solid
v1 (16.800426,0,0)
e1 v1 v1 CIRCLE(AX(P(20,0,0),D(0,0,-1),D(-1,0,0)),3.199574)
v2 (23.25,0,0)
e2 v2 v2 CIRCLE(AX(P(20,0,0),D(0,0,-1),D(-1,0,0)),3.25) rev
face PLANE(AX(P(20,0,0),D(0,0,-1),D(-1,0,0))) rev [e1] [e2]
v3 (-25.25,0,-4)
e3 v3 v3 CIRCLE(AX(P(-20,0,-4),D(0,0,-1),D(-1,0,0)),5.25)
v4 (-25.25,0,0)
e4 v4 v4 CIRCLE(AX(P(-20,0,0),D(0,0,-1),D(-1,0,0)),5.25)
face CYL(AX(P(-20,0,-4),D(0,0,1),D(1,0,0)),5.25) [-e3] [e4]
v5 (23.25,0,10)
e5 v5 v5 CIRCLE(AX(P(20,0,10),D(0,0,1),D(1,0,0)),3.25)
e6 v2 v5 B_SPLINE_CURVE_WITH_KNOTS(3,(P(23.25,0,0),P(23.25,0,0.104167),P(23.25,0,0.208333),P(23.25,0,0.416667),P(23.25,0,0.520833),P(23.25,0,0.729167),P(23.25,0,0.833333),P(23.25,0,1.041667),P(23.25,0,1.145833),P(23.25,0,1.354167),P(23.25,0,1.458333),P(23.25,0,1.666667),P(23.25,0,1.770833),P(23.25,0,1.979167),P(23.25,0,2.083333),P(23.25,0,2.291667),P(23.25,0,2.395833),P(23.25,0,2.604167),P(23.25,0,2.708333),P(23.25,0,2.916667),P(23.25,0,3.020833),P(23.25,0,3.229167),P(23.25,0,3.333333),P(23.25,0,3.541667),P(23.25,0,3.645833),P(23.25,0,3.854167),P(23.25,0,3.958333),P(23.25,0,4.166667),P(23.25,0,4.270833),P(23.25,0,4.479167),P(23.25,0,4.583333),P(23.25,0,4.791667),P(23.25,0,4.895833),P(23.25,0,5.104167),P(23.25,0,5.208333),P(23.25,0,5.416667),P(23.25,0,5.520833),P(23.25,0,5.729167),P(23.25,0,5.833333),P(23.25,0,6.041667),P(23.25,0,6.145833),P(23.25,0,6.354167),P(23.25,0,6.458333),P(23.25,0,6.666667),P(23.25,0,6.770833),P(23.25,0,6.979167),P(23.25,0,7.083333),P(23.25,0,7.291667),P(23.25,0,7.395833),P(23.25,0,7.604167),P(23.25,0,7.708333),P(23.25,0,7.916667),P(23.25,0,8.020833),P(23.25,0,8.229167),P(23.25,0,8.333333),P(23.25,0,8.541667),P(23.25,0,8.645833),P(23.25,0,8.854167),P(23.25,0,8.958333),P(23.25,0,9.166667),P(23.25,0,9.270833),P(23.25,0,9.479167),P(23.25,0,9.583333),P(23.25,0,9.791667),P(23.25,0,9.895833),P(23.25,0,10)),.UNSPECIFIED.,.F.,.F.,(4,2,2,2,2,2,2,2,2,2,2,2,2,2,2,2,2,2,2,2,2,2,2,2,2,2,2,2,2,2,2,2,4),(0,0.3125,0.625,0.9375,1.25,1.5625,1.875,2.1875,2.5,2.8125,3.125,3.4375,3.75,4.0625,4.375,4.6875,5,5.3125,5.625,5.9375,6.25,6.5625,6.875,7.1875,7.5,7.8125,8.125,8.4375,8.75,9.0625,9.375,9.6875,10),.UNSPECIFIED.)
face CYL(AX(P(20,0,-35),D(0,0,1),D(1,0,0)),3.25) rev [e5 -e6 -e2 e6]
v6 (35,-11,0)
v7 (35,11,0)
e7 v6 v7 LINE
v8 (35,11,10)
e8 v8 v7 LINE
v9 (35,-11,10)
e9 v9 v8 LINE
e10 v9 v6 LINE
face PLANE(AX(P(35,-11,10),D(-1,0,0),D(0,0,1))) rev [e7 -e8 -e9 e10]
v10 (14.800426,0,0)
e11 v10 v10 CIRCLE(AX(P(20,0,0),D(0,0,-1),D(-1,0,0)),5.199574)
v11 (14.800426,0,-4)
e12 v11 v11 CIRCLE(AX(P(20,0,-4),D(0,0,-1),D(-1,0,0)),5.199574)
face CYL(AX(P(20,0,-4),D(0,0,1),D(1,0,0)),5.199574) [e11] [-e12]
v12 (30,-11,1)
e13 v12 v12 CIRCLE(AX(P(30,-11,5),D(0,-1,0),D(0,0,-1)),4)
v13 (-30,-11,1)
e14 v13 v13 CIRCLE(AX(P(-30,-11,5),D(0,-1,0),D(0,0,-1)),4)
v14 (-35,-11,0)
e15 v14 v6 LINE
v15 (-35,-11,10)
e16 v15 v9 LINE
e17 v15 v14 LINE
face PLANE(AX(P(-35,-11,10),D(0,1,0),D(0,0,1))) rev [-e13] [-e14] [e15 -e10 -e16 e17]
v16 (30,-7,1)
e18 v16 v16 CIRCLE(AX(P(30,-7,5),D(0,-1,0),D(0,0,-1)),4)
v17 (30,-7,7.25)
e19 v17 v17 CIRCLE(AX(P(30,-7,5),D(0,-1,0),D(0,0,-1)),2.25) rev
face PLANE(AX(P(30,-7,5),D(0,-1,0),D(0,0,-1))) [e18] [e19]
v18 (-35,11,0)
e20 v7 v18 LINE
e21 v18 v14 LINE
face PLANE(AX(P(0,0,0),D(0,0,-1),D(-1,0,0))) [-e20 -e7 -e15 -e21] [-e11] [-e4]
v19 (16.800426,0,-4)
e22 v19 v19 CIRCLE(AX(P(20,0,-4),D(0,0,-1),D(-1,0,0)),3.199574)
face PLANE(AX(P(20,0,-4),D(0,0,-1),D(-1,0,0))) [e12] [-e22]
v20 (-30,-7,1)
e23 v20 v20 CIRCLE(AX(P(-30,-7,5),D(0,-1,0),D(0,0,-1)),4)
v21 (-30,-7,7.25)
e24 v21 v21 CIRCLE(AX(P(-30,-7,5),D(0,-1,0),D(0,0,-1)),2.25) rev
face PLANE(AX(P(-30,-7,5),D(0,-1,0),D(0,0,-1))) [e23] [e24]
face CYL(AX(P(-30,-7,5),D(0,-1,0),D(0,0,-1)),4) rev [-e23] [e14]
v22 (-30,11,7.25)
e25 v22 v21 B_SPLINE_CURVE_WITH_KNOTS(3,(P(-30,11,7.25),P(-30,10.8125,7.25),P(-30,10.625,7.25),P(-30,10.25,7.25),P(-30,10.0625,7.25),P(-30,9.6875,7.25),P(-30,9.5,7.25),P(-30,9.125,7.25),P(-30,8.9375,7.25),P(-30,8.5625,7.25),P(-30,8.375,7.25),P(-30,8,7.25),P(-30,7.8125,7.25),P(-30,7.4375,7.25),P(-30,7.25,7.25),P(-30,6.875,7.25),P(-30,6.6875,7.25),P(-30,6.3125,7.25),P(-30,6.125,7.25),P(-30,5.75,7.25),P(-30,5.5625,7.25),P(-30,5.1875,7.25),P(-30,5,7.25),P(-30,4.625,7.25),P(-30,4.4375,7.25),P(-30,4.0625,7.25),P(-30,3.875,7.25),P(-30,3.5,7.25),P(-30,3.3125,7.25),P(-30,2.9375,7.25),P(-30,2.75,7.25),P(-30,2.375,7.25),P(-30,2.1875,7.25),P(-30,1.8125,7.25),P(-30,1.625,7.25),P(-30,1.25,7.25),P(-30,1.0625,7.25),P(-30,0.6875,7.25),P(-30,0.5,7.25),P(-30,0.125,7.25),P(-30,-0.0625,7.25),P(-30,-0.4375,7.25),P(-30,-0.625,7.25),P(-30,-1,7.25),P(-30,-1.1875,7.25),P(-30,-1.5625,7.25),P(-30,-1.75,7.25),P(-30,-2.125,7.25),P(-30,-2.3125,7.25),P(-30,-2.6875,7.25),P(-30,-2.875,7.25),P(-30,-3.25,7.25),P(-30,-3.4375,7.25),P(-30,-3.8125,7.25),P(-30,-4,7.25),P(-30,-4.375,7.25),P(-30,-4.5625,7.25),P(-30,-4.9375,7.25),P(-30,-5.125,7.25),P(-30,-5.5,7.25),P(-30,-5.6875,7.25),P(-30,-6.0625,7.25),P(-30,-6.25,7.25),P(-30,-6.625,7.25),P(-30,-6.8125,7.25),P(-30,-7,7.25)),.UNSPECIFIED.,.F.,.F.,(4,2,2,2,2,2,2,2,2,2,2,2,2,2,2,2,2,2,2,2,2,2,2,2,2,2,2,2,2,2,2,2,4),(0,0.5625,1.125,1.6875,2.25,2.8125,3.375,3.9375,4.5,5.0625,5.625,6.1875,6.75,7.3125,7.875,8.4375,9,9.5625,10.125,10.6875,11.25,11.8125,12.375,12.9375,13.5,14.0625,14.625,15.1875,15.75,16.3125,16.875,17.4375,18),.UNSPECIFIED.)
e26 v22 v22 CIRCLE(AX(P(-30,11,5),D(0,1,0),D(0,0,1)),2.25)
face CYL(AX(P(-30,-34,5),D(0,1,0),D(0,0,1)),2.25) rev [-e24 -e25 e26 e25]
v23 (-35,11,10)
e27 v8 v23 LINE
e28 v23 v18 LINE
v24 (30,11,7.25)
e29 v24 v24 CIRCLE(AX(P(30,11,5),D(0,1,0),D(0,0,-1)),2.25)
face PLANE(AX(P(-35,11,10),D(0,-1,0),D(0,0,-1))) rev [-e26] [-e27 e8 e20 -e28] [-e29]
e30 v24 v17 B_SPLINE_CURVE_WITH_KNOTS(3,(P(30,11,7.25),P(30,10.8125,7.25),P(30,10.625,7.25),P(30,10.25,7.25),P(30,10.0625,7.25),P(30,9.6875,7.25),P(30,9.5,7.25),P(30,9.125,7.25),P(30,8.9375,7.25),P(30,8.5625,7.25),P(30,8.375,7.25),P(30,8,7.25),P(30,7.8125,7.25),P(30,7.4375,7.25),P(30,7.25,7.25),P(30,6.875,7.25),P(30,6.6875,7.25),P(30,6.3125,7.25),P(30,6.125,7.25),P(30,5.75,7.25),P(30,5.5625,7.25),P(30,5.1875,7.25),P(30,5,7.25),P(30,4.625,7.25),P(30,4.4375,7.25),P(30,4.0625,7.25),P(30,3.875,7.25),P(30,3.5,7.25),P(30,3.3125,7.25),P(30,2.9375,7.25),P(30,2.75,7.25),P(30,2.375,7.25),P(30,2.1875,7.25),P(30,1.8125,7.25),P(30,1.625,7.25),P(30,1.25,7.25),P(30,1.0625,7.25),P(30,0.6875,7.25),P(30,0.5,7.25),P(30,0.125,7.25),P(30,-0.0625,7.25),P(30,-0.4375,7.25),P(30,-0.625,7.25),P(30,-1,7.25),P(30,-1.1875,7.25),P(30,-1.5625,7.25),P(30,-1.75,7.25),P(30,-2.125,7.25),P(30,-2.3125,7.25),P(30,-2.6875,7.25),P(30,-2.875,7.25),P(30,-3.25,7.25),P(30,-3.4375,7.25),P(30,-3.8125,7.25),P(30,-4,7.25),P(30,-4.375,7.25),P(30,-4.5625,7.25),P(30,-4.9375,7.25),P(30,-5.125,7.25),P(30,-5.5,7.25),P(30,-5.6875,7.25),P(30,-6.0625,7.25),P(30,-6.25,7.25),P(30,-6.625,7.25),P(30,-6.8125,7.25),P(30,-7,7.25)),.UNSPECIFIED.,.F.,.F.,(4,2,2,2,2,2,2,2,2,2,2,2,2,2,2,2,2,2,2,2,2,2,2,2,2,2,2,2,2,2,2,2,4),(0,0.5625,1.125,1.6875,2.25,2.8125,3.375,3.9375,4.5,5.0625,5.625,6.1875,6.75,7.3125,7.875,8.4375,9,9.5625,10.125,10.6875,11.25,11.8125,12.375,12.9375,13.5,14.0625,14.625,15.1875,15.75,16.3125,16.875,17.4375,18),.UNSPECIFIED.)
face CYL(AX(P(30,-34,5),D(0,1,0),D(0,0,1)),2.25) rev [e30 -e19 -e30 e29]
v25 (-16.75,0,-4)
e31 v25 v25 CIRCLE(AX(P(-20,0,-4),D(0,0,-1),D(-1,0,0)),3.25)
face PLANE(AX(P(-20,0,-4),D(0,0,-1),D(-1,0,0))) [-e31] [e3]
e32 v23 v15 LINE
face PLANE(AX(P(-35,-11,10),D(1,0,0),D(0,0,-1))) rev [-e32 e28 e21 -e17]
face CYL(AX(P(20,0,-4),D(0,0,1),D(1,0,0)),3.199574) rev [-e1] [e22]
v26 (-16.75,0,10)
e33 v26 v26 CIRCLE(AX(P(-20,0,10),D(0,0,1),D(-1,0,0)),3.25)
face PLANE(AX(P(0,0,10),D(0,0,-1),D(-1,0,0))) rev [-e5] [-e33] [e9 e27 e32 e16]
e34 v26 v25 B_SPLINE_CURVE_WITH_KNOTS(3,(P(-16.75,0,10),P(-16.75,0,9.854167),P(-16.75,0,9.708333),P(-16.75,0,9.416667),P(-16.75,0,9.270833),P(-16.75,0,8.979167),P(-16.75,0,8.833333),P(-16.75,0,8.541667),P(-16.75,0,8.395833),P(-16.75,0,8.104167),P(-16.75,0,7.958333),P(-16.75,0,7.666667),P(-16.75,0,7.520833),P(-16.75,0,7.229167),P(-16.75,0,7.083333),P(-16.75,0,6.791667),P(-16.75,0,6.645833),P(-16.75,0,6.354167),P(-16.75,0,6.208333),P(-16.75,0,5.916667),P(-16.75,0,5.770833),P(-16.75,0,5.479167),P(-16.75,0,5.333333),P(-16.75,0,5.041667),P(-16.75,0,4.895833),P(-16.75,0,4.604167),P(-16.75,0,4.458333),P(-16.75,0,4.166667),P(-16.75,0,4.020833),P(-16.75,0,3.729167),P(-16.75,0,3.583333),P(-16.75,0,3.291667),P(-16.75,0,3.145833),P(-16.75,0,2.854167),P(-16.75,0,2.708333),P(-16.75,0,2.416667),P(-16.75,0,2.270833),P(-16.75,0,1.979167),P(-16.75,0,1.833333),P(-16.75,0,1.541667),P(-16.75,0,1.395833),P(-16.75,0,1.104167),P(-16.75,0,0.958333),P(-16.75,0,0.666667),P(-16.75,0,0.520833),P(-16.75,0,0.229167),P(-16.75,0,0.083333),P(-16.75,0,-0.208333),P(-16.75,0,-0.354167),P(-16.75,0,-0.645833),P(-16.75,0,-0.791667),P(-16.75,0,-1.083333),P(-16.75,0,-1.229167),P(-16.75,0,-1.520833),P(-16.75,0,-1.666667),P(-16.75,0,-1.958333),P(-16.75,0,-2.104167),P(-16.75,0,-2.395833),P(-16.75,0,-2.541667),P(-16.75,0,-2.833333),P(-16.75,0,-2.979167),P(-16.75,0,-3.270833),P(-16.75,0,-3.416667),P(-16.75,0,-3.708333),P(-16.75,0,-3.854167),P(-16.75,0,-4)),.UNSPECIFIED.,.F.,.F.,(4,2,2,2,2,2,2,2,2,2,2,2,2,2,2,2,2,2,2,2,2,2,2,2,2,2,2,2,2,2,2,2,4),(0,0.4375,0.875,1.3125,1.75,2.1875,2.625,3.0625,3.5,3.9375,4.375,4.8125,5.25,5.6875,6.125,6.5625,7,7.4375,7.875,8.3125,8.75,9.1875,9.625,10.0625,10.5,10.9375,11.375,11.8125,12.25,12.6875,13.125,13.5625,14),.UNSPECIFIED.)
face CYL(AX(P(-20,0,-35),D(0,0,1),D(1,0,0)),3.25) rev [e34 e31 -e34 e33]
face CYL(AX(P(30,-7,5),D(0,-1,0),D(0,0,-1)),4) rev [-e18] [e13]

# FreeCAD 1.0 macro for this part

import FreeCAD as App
import Part
import Sketcher
from FreeCAD import Vector
Q = App.Units.Quantity


def add_polygon(sketch, points):
    """Adds a closed chain of lines whose ends are joined by coincident constraints."""
    first, n = sketch.GeometryCount, len(points)
    for a, b in zip(points, points[1:] + points[:1]):
        sketch.addGeometry(Part.LineSegment(App.Vector(*a, 0), App.Vector(*b, 0)), False)
    for i in range(n):
        sketch.addConstraint(Sketcher.Constraint("Coincident", first + i, 2, first + (i + 1) % n, 1))

doc = App.newDocument("Part")
params = doc.addObject("Spreadsheet::Sheet", "Params")
for row, (alias, value) in enumerate([
    ("sketch1_width", "70 mm"),
    ("sketch1_height", "22 mm"),
    ("pad1_length", "10 mm"),
    ("sketch2_diameter", "4.5 mm"),
    ("pocket1_length", "45 mm"),
    ("sketch3_diameter", "6.5 mm"),
    ("pocket2_length", "45 mm"),
    ("sketch4_diameter", "10.5 mm"),
    ("sketch4_diameter2", "6.5 mm"),
    ("pad2_length", "4 mm"),
    ("sketch5_diameter", "8 mm"),
    ("pocket3_length", "4 mm"),
], start=1):
    params.set(f"A{row}", alias)
    params.set(f"B{row}", "=" + value)
    params.setAlias(f"B{row}", alias)

body = doc.addObject("PartDesign::Body", "Body")

# Sketch on XY plane
sketch1 = body.newObject("Sketcher::SketchObject", "Sketch")
sketch1.AttachmentSupport = (doc.getObject("XY_Plane"), [""])
sketch1.MapMode = "FlatFace"
add_polygon(sketch1, [(-35, 11), (-35, -11), (35, -11), (35, 11)])  # lines 0-3
sketch1.addConstraint([
    Sketcher.Constraint("Vertical", 0),
    Sketcher.Constraint("Horizontal", 1),
    Sketcher.Constraint("Vertical", 2),
    Sketcher.Constraint("Horizontal", 3),
    Sketcher.Constraint("Symmetric", 0, 2, 2, 2, -1, 1),
    Sketcher.Constraint("DistanceX", 1, 1, 1, 2, Q("70 mm")),
    Sketcher.Constraint("DistanceY", 0, 2, 0, 1, Q("22 mm")),
])
sketch1.setExpression("Constraints[9]", "Params.sketch1_width")
sketch1.setExpression("Constraints[10]", "Params.sketch1_height")
pad1 = body.newObject("PartDesign::Pad", "Pad")
pad1.Profile = sketch1
pad1.setExpression("Length", "Params.pad1_length")

# Sketch on XZ plane
sketch2 = body.newObject("Sketcher::SketchObject", "Sketch001")
sketch2.AttachmentSupport = (doc.getObject("XZ_Plane"), [""])
sketch2.MapMode = "FlatFace"
sketch2.AttachmentOffset = App.Placement(Vector(0, 0, -11), App.Rotation())
sketch2.addGeometry([
    Part.Circle(Vector(-30, 5, 0), Vector(0, 0, 1), 2.2),
    Part.Circle(Vector(30, 5, 0), Vector(0, 0, 1), 2.2),
], False)
sketch2.addConstraint([
    Sketcher.Constraint("Equal", 0, 1),
    Sketcher.Constraint("Symmetric", 0, 3, 1, 3, -2),
    Sketcher.Constraint("Diameter", 0, Q("4.5 mm")),
    Sketcher.Constraint("DistanceX", 0, 3, -1, 1, Q("30 mm")),
    Sketcher.Constraint("DistanceY", -1, 1, 0, 3, Q("5 mm")),
])
sketch2.setExpression("Constraints[2]", "Params.sketch2_diameter")
pocket1 = body.newObject("PartDesign::Pocket", "Pocket")
pocket1.Profile = sketch2
pocket1.setExpression("Length", "Params.pocket1_length")
pocket1.Reversed = True

# Sketch on XY plane
sketch3 = body.newObject("Sketcher::SketchObject", "Sketch002")
sketch3.AttachmentSupport = (doc.getObject("XY_Plane"), [""])
sketch3.MapMode = "FlatFace"
sketch3.AttachmentOffset = App.Placement(Vector(0, 0, 10), App.Rotation())
sketch3.addGeometry([
    Part.Circle(Vector(20, 0, 0), Vector(0, 0, 1), 3.2),
    Part.Circle(Vector(-20, 0, 0), Vector(0, 0, 1), 3.2),
], False)
sketch3.addConstraint([
    Sketcher.Constraint("Equal", 0, 1),
    Sketcher.Constraint("Symmetric", 0, 3, 1, 3, -1, 1),
    Sketcher.Constraint("PointOnObject", 0, 3, -1),
    Sketcher.Constraint("Diameter", 0, Q("6.5 mm")),
    Sketcher.Constraint("DistanceX", -1, 1, 0, 3, Q("20 mm")),
])
sketch3.setExpression("Constraints[3]", "Params.sketch3_diameter")
pocket2 = body.newObject("PartDesign::Pocket", "Pocket001")
pocket2.Profile = sketch3
pocket2.setExpression("Length", "Params.pocket2_length")

# Sketch on XY plane
sketch4 = body.newObject("Sketcher::SketchObject", "Sketch003")
sketch4.AttachmentSupport = (doc.getObject("XY_Plane"), [""])
sketch4.MapMode = "FlatFace"
sketch4.addGeometry([
    Part.Circle(Vector(20, 0, 0), Vector(0, 0, 1), 5.2),
    Part.Circle(Vector(20, 0, 0), Vector(0, 0, 1), 3.2),
    Part.Circle(Vector(-20, 0, 0), Vector(0, 0, 1), 5.2),
    Part.Circle(Vector(-20, 0, 0), Vector(0, 0, 1), 3.2),
], False)
sketch4.addConstraint([
    Sketcher.Constraint("Coincident", 1, 3, 0, 3),
    Sketcher.Constraint("Coincident", 3, 3, 2, 3),
    Sketcher.Constraint("Symmetric", 0, 3, 2, 3, -1, 1),
    Sketcher.Constraint("PointOnObject", 0, 3, -1),
    Sketcher.Constraint("Diameter", 2, Q("10.5 mm")),
    Sketcher.Constraint("Diameter", 3, Q("6.5 mm")),
    Sketcher.Constraint("DistanceX", -1, 1, 0, 3, Q("20 mm")),
    Sketcher.Constraint("Diameter", 0, Q("10.399148 mm")),
    Sketcher.Constraint("Diameter", 1, Q("6.399148 mm")),
])
sketch4.setExpression("Constraints[4]", "Params.sketch4_diameter")
sketch4.setExpression("Constraints[5]", "Params.sketch4_diameter2")
pad2 = body.newObject("PartDesign::Pad", "Pad001")
pad2.Profile = sketch4
pad2.setExpression("Length", "Params.pad2_length")
pad2.Reversed = True

# Sketch on XZ plane
sketch5 = body.newObject("Sketcher::SketchObject", "Sketch004")
sketch5.AttachmentSupport = (doc.getObject("XZ_Plane"), [""])
sketch5.MapMode = "FlatFace"
sketch5.AttachmentOffset = App.Placement(Vector(0, 0, 11), App.Rotation())
sketch5.addGeometry([
    Part.Circle(Vector(30, 5, 0), Vector(0, 0, 1), 4),
    Part.Circle(Vector(-30, 5, 0), Vector(0, 0, 1), 4),
], False)
sketch5.addConstraint([
    Sketcher.Constraint("Equal", 0, 1),
    Sketcher.Constraint("Symmetric", 0, 3, 1, 3, -2),
    Sketcher.Constraint("Diameter", 0, Q("8 mm")),
    Sketcher.Constraint("DistanceX", -1, 1, 0, 3, Q("30 mm")),
    Sketcher.Constraint("DistanceY", -1, 1, 0, 3, Q("5 mm")),
])
sketch5.setExpression("Constraints[2]", "Params.sketch5_diameter")
pocket3 = body.newObject("PartDesign::Pocket", "Pocket002")
pocket3.Profile = sketch5
pocket3.setExpression("Length", "Params.pocket3_length")

doc.recompute()
